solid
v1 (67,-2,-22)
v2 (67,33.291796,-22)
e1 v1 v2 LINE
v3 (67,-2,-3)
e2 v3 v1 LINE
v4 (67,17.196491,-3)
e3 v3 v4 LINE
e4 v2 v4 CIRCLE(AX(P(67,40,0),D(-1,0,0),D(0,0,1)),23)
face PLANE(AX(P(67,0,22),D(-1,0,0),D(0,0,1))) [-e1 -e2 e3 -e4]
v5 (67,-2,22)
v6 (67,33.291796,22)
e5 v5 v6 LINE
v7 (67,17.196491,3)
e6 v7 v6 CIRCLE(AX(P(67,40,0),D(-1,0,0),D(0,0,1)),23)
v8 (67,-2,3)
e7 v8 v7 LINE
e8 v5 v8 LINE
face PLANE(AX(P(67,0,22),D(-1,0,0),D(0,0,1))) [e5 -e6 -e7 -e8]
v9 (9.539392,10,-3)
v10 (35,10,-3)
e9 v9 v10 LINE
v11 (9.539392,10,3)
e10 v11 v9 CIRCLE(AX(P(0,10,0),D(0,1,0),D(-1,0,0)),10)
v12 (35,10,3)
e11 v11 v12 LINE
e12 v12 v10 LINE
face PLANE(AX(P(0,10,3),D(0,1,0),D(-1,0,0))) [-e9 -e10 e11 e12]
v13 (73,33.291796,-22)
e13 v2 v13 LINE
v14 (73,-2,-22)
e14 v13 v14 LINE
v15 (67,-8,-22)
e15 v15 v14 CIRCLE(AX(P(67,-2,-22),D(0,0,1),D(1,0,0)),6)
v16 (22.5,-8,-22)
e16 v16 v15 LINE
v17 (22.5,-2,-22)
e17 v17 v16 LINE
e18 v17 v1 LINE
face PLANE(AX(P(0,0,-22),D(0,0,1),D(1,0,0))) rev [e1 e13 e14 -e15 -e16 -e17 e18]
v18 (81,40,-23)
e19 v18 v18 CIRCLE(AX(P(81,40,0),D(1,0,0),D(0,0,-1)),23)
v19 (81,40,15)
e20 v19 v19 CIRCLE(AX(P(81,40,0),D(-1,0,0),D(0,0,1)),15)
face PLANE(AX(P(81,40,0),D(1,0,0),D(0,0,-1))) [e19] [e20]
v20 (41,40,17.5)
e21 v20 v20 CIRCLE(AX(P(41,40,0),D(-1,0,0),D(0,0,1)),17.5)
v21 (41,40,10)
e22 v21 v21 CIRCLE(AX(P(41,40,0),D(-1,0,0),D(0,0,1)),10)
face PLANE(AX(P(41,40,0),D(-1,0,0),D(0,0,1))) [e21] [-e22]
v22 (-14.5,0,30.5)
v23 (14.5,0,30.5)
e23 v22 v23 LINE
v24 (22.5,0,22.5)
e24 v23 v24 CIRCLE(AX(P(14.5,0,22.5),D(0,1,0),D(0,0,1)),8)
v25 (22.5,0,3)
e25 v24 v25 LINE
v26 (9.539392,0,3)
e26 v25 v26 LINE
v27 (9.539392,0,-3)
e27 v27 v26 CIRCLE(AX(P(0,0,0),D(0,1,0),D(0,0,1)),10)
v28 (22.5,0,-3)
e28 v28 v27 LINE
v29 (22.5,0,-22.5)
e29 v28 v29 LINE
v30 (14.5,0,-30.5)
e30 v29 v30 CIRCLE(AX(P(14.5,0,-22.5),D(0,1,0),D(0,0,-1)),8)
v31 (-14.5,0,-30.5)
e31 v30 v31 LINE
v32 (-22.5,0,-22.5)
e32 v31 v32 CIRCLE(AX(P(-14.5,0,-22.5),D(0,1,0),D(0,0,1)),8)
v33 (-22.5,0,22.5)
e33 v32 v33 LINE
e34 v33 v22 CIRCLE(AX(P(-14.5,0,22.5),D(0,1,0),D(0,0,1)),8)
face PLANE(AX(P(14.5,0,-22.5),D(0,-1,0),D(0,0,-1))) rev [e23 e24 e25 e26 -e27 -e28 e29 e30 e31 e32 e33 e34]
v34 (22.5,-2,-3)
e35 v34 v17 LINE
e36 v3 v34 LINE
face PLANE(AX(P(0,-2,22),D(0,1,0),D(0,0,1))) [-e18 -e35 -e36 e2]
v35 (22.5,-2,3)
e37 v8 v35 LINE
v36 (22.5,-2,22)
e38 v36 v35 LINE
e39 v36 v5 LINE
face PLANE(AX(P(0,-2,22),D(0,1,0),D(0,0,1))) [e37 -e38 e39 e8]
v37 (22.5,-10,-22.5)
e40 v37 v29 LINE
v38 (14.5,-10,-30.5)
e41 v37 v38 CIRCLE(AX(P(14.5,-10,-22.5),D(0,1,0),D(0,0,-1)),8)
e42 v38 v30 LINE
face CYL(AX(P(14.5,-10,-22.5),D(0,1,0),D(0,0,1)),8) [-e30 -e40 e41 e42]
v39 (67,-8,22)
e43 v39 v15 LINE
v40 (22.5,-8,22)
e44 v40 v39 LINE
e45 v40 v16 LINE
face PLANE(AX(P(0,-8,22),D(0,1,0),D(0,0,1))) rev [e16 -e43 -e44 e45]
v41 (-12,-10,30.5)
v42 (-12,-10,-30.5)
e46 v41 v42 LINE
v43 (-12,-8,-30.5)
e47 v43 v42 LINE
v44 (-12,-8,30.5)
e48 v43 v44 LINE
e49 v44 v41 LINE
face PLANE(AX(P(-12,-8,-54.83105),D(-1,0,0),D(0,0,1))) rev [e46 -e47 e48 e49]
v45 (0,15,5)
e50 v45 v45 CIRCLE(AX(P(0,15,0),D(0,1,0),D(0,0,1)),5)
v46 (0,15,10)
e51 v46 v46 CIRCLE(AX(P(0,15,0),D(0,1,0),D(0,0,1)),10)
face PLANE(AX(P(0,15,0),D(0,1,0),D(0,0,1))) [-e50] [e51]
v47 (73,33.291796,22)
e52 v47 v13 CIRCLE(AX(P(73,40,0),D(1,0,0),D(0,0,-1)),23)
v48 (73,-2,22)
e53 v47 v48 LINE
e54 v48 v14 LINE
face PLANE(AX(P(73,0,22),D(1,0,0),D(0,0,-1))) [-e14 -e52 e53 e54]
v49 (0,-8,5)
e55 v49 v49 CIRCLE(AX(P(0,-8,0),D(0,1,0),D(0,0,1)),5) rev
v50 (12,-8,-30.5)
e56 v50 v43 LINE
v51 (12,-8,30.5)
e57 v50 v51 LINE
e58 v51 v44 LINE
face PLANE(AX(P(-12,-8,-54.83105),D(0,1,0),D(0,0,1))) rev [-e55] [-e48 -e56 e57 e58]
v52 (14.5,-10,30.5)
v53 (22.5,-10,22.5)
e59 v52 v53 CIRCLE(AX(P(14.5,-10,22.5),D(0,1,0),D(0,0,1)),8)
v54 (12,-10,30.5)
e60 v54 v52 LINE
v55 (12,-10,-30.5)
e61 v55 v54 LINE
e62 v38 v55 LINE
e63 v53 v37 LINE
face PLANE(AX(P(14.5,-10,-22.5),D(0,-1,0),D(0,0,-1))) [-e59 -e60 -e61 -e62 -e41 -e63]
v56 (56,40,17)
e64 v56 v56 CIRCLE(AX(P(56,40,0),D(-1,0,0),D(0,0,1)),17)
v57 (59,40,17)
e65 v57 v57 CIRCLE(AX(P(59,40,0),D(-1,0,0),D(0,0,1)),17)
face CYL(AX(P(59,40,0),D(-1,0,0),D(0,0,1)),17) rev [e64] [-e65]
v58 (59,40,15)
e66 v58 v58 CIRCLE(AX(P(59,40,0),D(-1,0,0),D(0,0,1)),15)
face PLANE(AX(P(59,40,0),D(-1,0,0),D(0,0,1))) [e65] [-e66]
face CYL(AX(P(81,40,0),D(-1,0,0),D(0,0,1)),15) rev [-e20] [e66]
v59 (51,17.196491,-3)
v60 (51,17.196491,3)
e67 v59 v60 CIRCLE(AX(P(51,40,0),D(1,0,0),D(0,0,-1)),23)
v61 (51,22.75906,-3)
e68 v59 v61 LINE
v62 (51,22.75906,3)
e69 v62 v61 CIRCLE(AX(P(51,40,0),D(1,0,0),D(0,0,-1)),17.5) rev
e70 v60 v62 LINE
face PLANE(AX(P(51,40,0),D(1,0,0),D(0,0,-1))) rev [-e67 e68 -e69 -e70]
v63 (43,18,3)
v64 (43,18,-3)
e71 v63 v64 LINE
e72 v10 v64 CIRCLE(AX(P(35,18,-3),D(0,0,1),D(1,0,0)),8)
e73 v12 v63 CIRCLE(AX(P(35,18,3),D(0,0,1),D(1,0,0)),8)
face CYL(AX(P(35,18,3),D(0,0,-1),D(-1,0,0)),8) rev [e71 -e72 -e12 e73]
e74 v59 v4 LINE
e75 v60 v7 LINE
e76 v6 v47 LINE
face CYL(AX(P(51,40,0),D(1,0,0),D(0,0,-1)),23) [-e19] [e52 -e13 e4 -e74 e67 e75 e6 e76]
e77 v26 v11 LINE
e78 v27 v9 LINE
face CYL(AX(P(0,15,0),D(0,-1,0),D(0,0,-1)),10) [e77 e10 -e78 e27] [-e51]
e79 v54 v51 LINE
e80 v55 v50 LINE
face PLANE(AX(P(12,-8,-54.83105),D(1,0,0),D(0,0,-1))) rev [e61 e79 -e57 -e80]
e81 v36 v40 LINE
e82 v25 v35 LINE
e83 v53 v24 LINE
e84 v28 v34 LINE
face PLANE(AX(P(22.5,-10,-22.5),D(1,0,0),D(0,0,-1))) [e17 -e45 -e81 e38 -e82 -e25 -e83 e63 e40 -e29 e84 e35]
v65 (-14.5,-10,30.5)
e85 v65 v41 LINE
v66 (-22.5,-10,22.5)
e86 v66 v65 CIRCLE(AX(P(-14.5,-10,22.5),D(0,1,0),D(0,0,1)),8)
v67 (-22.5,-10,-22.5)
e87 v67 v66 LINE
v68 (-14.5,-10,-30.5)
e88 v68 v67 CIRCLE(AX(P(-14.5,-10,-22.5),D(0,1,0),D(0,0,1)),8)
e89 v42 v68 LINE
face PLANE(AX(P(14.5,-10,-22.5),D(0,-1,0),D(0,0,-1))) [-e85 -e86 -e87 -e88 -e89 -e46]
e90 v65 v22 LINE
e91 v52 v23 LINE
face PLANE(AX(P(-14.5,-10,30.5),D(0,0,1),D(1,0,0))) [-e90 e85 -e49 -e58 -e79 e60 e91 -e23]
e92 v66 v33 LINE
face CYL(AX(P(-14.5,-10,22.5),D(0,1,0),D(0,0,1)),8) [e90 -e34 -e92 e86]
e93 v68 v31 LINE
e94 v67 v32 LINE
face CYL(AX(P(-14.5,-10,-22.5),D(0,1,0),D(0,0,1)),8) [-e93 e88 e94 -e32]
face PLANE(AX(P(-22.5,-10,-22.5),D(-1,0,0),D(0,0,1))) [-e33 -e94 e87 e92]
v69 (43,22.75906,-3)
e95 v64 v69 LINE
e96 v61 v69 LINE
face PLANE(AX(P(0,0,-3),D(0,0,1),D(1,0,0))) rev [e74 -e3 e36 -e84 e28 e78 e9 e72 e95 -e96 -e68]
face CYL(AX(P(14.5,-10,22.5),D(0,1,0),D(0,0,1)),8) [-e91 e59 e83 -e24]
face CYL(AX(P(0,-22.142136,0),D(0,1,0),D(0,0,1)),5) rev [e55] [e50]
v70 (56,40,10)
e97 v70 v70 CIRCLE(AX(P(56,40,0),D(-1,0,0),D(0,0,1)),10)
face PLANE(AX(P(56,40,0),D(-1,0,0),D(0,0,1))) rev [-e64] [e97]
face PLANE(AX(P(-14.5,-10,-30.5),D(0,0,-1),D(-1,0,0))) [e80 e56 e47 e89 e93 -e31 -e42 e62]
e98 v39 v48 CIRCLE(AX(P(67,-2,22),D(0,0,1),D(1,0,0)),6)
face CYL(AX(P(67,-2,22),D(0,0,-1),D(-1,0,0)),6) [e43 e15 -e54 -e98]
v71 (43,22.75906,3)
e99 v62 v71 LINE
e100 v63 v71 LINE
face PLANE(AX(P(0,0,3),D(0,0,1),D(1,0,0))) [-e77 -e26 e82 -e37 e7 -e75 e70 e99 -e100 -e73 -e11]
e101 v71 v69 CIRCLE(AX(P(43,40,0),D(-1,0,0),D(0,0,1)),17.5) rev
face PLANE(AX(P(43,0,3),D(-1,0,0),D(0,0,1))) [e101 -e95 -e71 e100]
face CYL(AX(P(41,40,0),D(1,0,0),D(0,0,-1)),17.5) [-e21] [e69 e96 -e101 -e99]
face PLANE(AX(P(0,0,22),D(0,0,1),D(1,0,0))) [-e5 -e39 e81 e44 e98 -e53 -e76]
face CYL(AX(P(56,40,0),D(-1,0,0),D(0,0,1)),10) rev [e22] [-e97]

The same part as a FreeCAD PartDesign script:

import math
import FreeCAD as App
import Part
import Sketcher
from FreeCAD import Vector

doc = App.newDocument("Part")
body = doc.addObject("PartDesign::Body", "Body")

sketch1 = body.newObject("Sketcher::SketchObject", "Sketch")
sketch1.AttachmentSupport = (doc.getObject("XZ_Plane"), [""])
sketch1.MapMode = "FlatFace"
sketch1.addGeometry([
    Part.LineSegment(Vector(14.5, -30.5, 0), Vector(-14.5, -30.5, 0)),
    Part.ArcOfCircle(Part.Circle(Vector(-14.5, -22.5, 0), Vector(0, 0, 1), 8), math.radians(-180), math.radians(-90)),
    Part.LineSegment(Vector(-22.5, -22.5, 0), Vector(-22.5, 22.5, 0)),
    Part.ArcOfCircle(Part.Circle(Vector(-14.5, 22.5, 0), Vector(0, 0, 1), 8), math.radians(90), math.radians(180)),
    Part.LineSegment(Vector(-14.5, 30.5, 0), Vector(14.5, 30.5, 0)),
    Part.ArcOfCircle(Part.Circle(Vector(14.5, 22.5, 0), Vector(0, 0, 1), 8), math.radians(0), math.radians(90)),
    Part.LineSegment(Vector(22.5, 22.5, 0), Vector(22.5, -22.5, 0)),
    Part.ArcOfCircle(Part.Circle(Vector(14.5, -22.5, 0), Vector(0, 0, 1), 8), math.radians(-90), math.radians(0)),
], False)
sketch1.addConstraint([
    Sketcher.Constraint("Tangent", 0, 2, 1, 2),
    Sketcher.Constraint("Tangent", 1, 1, 2, 1),
    Sketcher.Constraint("Tangent", 2, 2, 3, 2),
    Sketcher.Constraint("Tangent", 3, 1, 4, 1),
    Sketcher.Constraint("Tangent", 4, 2, 5, 2),
    Sketcher.Constraint("Tangent", 5, 1, 6, 1),
    Sketcher.Constraint("Tangent", 6, 2, 7, 2),
    Sketcher.Constraint("Tangent", 7, 1, 0, 1),
    Sketcher.Constraint("Horizontal", 0),
    Sketcher.Constraint("Vertical", 2),
    Sketcher.Constraint("Horizontal", 4),
    Sketcher.Constraint("Vertical", 6),
    Sketcher.Constraint("Equal", 1, 3),
    Sketcher.Constraint("Equal", 3, 5),
    Sketcher.Constraint("Equal", 5, 7),
    Sketcher.Constraint("Symmetric", 1, 3, 5, 3, -1, 1),
    Sketcher.Constraint("Radius", 1, 8.0),
    Sketcher.Constraint("DistanceX", 0, 2, 0, 1, 29.0),
    Sketcher.Constraint("DistanceY", 2, 1, 2, 2, 45.0),
])
pad1 = body.newObject("PartDesign::Pad", "Pad")
pad1.Profile = sketch1
pad1.Length = 10

sketch2 = body.newObject("Sketcher::SketchObject", "Sketch001")
sketch2.AttachmentSupport = (doc.getObject("XZ_Plane"), [""])
sketch2.MapMode = "FlatFace"
sketch2.addGeometry(Part.Circle(Vector(0, 0, 0), Vector(0, 0, 1), 10), False)
sketch2.addConstraint([
    Sketcher.Constraint("Coincident", 0, 3, -1, 1),
    Sketcher.Constraint("Diameter", 0, 20.0),
])
pad2 = body.newObject("PartDesign::Pad", "Pad001")
pad2.Profile = sketch2
pad2.Length = 15
pad2.Reversed = True

sketch3 = body.newObject("Sketcher::SketchObject", "Sketch002")
sketch3.AttachmentSupport = (doc.getObject("XY_Plane"), [""])
sketch3.MapMode = "FlatFace"
sketch3.AttachmentOffset = App.Placement(Vector(0, 0, 30.5), App.Rotation())
sketch3.addGeometry([
    Part.LineSegment(Vector(-12, -8, 0), Vector(-12, -12, 0)),
    Part.LineSegment(Vector(-12, -12, 0), Vector(12, -12, 0)),
    Part.LineSegment(Vector(12, -12, 0), Vector(12, -8, 0)),
    Part.LineSegment(Vector(12, -8, 0), Vector(-12, -8, 0)),
], False)
sketch3.addConstraint([
    Sketcher.Constraint("Coincident", 0, 2, 1, 1),
    Sketcher.Constraint("Coincident", 1, 2, 2, 1),
    Sketcher.Constraint("Coincident", 2, 2, 3, 1),
    Sketcher.Constraint("Coincident", 3, 2, 0, 1),
    Sketcher.Constraint("Vertical", 0),
    Sketcher.Constraint("Horizontal", 1),
    Sketcher.Constraint("Vertical", 2),
    Sketcher.Constraint("Horizontal", 3),
    Sketcher.Constraint("DistanceX", 1, 1, 1, 2, 24.0),
    Sketcher.Constraint("DistanceY", 0, 2, 0, 1, 4.0),
    Sketcher.Constraint("DistanceX", 0, 2, -1, 1, 12.0),
    Sketcher.Constraint("DistanceY", 0, 2, -1, 1, 12.0),
])
pocket1 = body.newObject("PartDesign::Pocket", "Pocket")
pocket1.Profile = sketch3
pocket1.Length = 61

sketch4 = body.newObject("Sketcher::SketchObject", "Sketch003")
sketch4.AttachmentSupport = (doc.getObject("XZ_Plane"), [""])
sketch4.MapMode = "FlatFace"
sketch4.AttachmentOffset = App.Placement(Vector(0, 0, -15), App.Rotation())
sketch4.addGeometry(Part.Circle(Vector(0, 0, 0), Vector(0, 0, 1), 5), False)
sketch4.addConstraint([
    Sketcher.Constraint("Coincident", 0, 3, -1, 1),
    Sketcher.Constraint("Diameter", 0, 10.0),
])
pocket2 = body.newObject("PartDesign::Pocket", "Pocket001")
pocket2.Profile = sketch4
pocket2.Length = 23
pocket2.Reversed = True

sketch5 = body.newObject("Sketcher::SketchObject", "Sketch004")
sketch5.AttachmentSupport = (doc.getObject("XY_Plane"), [""])
sketch5.MapMode = "FlatFace"
sketch5.addGeometry([
    Part.LineSegment(Vector(22.5, -8, 0), Vector(67, -8, 0)),
    Part.ArcOfCircle(Part.Circle(Vector(67, -2, 0), Vector(0, 0, 1), 6), math.radians(-90), math.radians(0)),
    Part.LineSegment(Vector(73, -2, 0), Vector(73, 40, 0)),
    Part.LineSegment(Vector(73, 40, 0), Vector(67, 40, 0)),
    Part.LineSegment(Vector(67, 40, 0), Vector(67, -2, 0)),
    Part.LineSegment(Vector(67, -2, 0), Vector(22.5, -2, 0)),
    Part.LineSegment(Vector(22.5, -2, 0), Vector(22.5, -8, 0)),
], False)
sketch5.addConstraint([
    Sketcher.Constraint("Tangent", 0, 2, 1, 1),
    Sketcher.Constraint("Tangent", 1, 2, 2, 1),
    Sketcher.Constraint("Coincident", 2, 2, 3, 1),
    Sketcher.Constraint("Coincident", 3, 2, 4, 1),
    Sketcher.Constraint("Coincident", 4, 2, 5, 1),
    Sketcher.Constraint("Coincident", 5, 2, 6, 1),
    Sketcher.Constraint("Coincident", 6, 2, 0, 1),
    Sketcher.Constraint("Horizontal", 0),
    Sketcher.Constraint("Vertical", 2),
    Sketcher.Constraint("Horizontal", 3),
    Sketcher.Constraint("Vertical", 4),
    Sketcher.Constraint("Horizontal", 5),
    Sketcher.Constraint("Vertical", 6),
    Sketcher.Constraint("Coincident", 4, 2, 1, 3),
    Sketcher.Constraint("Radius", 1, 6.0),
    Sketcher.Constraint("DistanceY", 2, 1, 2, 2, 42.0),
    Sketcher.Constraint("DistanceX", 0, 1, 0, 2, 44.5),
    Sketcher.Constraint("DistanceX", -1, 1, 1, 3, 67.0),
    Sketcher.Constraint("DistanceY", 1, 3, -1, 1, 2.0),
])
pad3 = body.newObject("PartDesign::Pad", "Pad002")
pad3.Profile = sketch5
pad3.Length = 44
pad3.Midplane = True

sketch6 = body.newObject("Sketcher::SketchObject", "Sketch005")
sketch6.AttachmentSupport = (doc.getObject("XY_Plane"), [""])
sketch6.MapMode = "FlatFace"
sketch6.addGeometry([
    Part.ArcOfCircle(Part.Circle(Vector(35, 18, 0), Vector(0, 0, 1), 8), math.radians(-90), math.radians(0)),
    Part.LineSegment(Vector(35, 10, 0), Vector(6.5, 10, 0)),
    Part.LineSegment(Vector(6.5, 10, 0), Vector(6.5, -2, 0)),
    Part.LineSegment(Vector(6.5, -2, 0), Vector(67, -2, 0)),
    Part.LineSegment(Vector(67, -2, 0), Vector(67, 40, 0)),
    Part.LineSegment(Vector(67, 40, 0), Vector(43, 40, 0)),
    Part.LineSegment(Vector(43, 40, 0), Vector(43, 18, 0)),
], False)
sketch6.addConstraint([
    Sketcher.Constraint("Tangent", 0, 1, 1, 1),
    Sketcher.Constraint("Coincident", 1, 2, 2, 1),
    Sketcher.Constraint("Coincident", 2, 2, 3, 1),
    Sketcher.Constraint("Coincident", 3, 2, 4, 1),
    Sketcher.Constraint("Coincident", 4, 2, 5, 1),
    Sketcher.Constraint("Coincident", 5, 2, 6, 1),
    Sketcher.Constraint("Tangent", 6, 2, 0, 2),
    Sketcher.Constraint("Horizontal", 1),
    Sketcher.Constraint("Vertical", 2),
    Sketcher.Constraint("Horizontal", 3),
    Sketcher.Constraint("Vertical", 4),
    Sketcher.Constraint("Horizontal", 5),
    Sketcher.Constraint("Vertical", 6),
    Sketcher.Constraint("Radius", 0, 8.0),
    Sketcher.Constraint("DistanceX", 5, 2, 5, 1, 24.0),
    Sketcher.Constraint("DistanceY", 2, 2, 2, 1, 12.0),
    Sketcher.Constraint("DistanceY", 4, 1, 4, 2, 42.0),
    Sketcher.Constraint("DistanceX", 1, 2, 1, 1, 28.5),
    Sketcher.Constraint("DistanceX", -1, 1, 0, 3, 35.0),
    Sketcher.Constraint("DistanceY", -1, 1, 0, 3, 18.0),
])
pad4 = body.newObject("PartDesign::Pad", "Pad003")
pad4.Profile = sketch6
pad4.Length = 6
pad4.Midplane = True

sketch7 = body.newObject("Sketcher::SketchObject", "Sketch006")
sketch7.AttachmentSupport = (doc.getObject("YZ_Plane"), [""])
sketch7.MapMode = "FlatFace"
sketch7.AttachmentOffset = App.Placement(Vector(0, 0, 81), App.Rotation())
sketch7.addGeometry(Part.Circle(Vector(40, 0, 0), Vector(0, 0, 1), 23), False)
sketch7.addConstraint([
    Sketcher.Constraint("PointOnObject", 0, 3, -1),
    Sketcher.Constraint("Diameter", 0, 46.0),
    Sketcher.Constraint("DistanceX", -1, 1, 0, 3, 40.0),
])
pad5 = body.newObject("PartDesign::Pad", "Pad004")
pad5.Profile = sketch7
pad5.Length = 30
pad5.Reversed = True

sketch8 = body.newObject("Sketcher::SketchObject", "Sketch007")
sketch8.AttachmentSupport = (doc.getObject("YZ_Plane"), [""])
sketch8.MapMode = "FlatFace"
sketch8.AttachmentOffset = App.Placement(Vector(0, 0, 51), App.Rotation())
sketch8.addGeometry(Part.Circle(Vector(40, 0, 0), Vector(0, 0, 1), 17.5), False)
sketch8.addConstraint([
    Sketcher.Constraint("PointOnObject", 0, 3, -1),
    Sketcher.Constraint("Diameter", 0, 35.0),
    Sketcher.Constraint("DistanceX", -1, 1, 0, 3, 40.0),
])
pad6 = body.newObject("PartDesign::Pad", "Pad005")
pad6.Profile = sketch8
pad6.Length = 10
pad6.Reversed = True

sketch9 = body.newObject("Sketcher::SketchObject", "Sketch008")
sketch9.AttachmentSupport = (doc.getObject("YZ_Plane"), [""])
sketch9.MapMode = "FlatFace"
sketch9.AttachmentOffset = App.Placement(Vector(0, 0, 41), App.Rotation())
sketch9.addGeometry(Part.Circle(Vector(40, 0, 0), Vector(0, 0, 1), 10), False)
sketch9.addConstraint([
    Sketcher.Constraint("PointOnObject", 0, 3, -1),
    Sketcher.Constraint("Diameter", 0, 20.0),
    Sketcher.Constraint("DistanceX", -1, 1, 0, 3, 40.0),
])
pocket3 = body.newObject("PartDesign::Pocket", "Pocket002")
pocket3.Profile = sketch9
pocket3.Length = 15
pocket3.Reversed = True

sketch10 = body.newObject("Sketcher::SketchObject", "Sketch009")
sketch10.AttachmentSupport = (doc.getObject("YZ_Plane"), [""])
sketch10.MapMode = "FlatFace"
sketch10.AttachmentOffset = App.Placement(Vector(0, 0, 56), App.Rotation())
sketch10.addGeometry(Part.Circle(Vector(40, 0, 0), Vector(0, 0, 1), 17), False)
sketch10.addConstraint([
    Sketcher.Constraint("PointOnObject", 0, 3, -1),
    Sketcher.Constraint("Diameter", 0, 34.0),
    Sketcher.Constraint("DistanceX", -1, 1, 0, 3, 40.0),
])
pocket4 = body.newObject("PartDesign::Pocket", "Pocket003")
pocket4.Profile = sketch10
pocket4.Length = 3
pocket4.Reversed = True

sketch11 = body.newObject("Sketcher::SketchObject", "Sketch010")
sketch11.AttachmentSupport = (doc.getObject("YZ_Plane"), [""])
sketch11.MapMode = "FlatFace"
sketch11.AttachmentOffset = App.Placement(Vector(0, 0, 59), App.Rotation())
sketch11.addGeometry(Part.Circle(Vector(40, 0, 0), Vector(0, 0, 1), 15), False)
sketch11.addConstraint([
    Sketcher.Constraint("PointOnObject", 0, 3, -1),
    Sketcher.Constraint("Diameter", 0, 30.0),
    Sketcher.Constraint("DistanceX", -1, 1, 0, 3, 40.0),
])
pocket5 = body.newObject("PartDesign::Pocket", "Pocket004")
pocket5.Profile = sketch11
pocket5.Length = 22
pocket5.Reversed = True

doc.recompute()
